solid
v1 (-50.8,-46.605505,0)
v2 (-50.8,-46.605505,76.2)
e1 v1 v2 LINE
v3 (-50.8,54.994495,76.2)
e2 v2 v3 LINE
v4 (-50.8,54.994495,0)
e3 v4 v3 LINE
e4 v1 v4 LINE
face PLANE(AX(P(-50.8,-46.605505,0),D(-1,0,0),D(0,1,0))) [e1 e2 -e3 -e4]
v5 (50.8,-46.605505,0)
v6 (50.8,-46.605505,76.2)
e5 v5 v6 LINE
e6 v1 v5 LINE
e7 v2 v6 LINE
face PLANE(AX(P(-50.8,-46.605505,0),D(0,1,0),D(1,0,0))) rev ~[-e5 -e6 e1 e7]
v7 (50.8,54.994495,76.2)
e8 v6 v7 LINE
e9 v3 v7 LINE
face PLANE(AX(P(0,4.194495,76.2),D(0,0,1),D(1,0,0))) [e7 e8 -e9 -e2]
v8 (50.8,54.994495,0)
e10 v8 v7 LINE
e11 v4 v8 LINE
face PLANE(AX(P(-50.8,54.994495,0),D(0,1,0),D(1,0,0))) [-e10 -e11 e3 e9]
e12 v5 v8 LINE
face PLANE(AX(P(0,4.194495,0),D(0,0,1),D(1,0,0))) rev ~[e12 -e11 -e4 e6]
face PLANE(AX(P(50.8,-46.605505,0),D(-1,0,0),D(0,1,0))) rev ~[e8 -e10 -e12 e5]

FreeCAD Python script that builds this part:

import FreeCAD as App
import Part
import Sketcher
from FreeCAD import Vector
Q = App.Units.Quantity

doc = App.newDocument("Part")
body = doc.addObject("PartDesign::Body", "Body")

sketch1 = doc.addObject("Sketcher::SketchObject", "Sketch")
body.addObject(sketch1)
sketch1.AttachmentSupport = (doc.XY_Plane, [""])
sketch1.MapMode = "FlatFace"
sketch1.addGeometry(Part.LineSegment(Vector(-51, 55, 0), Vector(-51, -47, 0)), False)
sketch1.addGeometry(Part.LineSegment(Vector(-51, -47, 0), Vector(51, -47, 0)), False)
sketch1.addGeometry(Part.LineSegment(Vector(51, -47, 0), Vector(51, 55, 0)), False)
sketch1.addGeometry(Part.LineSegment(Vector(51, 55, 0), Vector(-51, 55, 0)), False)
sketch1.addConstraint(Sketcher.Constraint("Coincident", 0, 2, 1, 1))
sketch1.addConstraint(Sketcher.Constraint("Coincident", 1, 2, 2, 1))
sketch1.addConstraint(Sketcher.Constraint("Coincident", 2, 2, 3, 1))
sketch1.addConstraint(Sketcher.Constraint("Coincident", 3, 2, 0, 1))
sketch1.addConstraint(Sketcher.Constraint("Vertical", 0))
sketch1.addConstraint(Sketcher.Constraint("Horizontal", 1))
sketch1.addConstraint(Sketcher.Constraint("Vertical", 2))
sketch1.addConstraint(Sketcher.Constraint("Horizontal", 3))
sketch1.addConstraint(Sketcher.Constraint("Equal", 3, 0))
sketch1.addConstraint(Sketcher.Constraint("DistanceX", 1, 1, 1, 2, Q("4 in")))
sketch1.addConstraint(Sketcher.Constraint("DistanceX", 0, 2, -1, 1, Q("2 in")))
sketch1.addConstraint(Sketcher.Constraint("DistanceY", 0, 2, -1, 1, Q("46.605505 mm")))
pad1 = doc.addObject("PartDesign::Pad", "Pad")
body.addObject(pad1)
pad1.Profile = sketch1
pad1.Length = Q("3 in")

doc.recompute()
